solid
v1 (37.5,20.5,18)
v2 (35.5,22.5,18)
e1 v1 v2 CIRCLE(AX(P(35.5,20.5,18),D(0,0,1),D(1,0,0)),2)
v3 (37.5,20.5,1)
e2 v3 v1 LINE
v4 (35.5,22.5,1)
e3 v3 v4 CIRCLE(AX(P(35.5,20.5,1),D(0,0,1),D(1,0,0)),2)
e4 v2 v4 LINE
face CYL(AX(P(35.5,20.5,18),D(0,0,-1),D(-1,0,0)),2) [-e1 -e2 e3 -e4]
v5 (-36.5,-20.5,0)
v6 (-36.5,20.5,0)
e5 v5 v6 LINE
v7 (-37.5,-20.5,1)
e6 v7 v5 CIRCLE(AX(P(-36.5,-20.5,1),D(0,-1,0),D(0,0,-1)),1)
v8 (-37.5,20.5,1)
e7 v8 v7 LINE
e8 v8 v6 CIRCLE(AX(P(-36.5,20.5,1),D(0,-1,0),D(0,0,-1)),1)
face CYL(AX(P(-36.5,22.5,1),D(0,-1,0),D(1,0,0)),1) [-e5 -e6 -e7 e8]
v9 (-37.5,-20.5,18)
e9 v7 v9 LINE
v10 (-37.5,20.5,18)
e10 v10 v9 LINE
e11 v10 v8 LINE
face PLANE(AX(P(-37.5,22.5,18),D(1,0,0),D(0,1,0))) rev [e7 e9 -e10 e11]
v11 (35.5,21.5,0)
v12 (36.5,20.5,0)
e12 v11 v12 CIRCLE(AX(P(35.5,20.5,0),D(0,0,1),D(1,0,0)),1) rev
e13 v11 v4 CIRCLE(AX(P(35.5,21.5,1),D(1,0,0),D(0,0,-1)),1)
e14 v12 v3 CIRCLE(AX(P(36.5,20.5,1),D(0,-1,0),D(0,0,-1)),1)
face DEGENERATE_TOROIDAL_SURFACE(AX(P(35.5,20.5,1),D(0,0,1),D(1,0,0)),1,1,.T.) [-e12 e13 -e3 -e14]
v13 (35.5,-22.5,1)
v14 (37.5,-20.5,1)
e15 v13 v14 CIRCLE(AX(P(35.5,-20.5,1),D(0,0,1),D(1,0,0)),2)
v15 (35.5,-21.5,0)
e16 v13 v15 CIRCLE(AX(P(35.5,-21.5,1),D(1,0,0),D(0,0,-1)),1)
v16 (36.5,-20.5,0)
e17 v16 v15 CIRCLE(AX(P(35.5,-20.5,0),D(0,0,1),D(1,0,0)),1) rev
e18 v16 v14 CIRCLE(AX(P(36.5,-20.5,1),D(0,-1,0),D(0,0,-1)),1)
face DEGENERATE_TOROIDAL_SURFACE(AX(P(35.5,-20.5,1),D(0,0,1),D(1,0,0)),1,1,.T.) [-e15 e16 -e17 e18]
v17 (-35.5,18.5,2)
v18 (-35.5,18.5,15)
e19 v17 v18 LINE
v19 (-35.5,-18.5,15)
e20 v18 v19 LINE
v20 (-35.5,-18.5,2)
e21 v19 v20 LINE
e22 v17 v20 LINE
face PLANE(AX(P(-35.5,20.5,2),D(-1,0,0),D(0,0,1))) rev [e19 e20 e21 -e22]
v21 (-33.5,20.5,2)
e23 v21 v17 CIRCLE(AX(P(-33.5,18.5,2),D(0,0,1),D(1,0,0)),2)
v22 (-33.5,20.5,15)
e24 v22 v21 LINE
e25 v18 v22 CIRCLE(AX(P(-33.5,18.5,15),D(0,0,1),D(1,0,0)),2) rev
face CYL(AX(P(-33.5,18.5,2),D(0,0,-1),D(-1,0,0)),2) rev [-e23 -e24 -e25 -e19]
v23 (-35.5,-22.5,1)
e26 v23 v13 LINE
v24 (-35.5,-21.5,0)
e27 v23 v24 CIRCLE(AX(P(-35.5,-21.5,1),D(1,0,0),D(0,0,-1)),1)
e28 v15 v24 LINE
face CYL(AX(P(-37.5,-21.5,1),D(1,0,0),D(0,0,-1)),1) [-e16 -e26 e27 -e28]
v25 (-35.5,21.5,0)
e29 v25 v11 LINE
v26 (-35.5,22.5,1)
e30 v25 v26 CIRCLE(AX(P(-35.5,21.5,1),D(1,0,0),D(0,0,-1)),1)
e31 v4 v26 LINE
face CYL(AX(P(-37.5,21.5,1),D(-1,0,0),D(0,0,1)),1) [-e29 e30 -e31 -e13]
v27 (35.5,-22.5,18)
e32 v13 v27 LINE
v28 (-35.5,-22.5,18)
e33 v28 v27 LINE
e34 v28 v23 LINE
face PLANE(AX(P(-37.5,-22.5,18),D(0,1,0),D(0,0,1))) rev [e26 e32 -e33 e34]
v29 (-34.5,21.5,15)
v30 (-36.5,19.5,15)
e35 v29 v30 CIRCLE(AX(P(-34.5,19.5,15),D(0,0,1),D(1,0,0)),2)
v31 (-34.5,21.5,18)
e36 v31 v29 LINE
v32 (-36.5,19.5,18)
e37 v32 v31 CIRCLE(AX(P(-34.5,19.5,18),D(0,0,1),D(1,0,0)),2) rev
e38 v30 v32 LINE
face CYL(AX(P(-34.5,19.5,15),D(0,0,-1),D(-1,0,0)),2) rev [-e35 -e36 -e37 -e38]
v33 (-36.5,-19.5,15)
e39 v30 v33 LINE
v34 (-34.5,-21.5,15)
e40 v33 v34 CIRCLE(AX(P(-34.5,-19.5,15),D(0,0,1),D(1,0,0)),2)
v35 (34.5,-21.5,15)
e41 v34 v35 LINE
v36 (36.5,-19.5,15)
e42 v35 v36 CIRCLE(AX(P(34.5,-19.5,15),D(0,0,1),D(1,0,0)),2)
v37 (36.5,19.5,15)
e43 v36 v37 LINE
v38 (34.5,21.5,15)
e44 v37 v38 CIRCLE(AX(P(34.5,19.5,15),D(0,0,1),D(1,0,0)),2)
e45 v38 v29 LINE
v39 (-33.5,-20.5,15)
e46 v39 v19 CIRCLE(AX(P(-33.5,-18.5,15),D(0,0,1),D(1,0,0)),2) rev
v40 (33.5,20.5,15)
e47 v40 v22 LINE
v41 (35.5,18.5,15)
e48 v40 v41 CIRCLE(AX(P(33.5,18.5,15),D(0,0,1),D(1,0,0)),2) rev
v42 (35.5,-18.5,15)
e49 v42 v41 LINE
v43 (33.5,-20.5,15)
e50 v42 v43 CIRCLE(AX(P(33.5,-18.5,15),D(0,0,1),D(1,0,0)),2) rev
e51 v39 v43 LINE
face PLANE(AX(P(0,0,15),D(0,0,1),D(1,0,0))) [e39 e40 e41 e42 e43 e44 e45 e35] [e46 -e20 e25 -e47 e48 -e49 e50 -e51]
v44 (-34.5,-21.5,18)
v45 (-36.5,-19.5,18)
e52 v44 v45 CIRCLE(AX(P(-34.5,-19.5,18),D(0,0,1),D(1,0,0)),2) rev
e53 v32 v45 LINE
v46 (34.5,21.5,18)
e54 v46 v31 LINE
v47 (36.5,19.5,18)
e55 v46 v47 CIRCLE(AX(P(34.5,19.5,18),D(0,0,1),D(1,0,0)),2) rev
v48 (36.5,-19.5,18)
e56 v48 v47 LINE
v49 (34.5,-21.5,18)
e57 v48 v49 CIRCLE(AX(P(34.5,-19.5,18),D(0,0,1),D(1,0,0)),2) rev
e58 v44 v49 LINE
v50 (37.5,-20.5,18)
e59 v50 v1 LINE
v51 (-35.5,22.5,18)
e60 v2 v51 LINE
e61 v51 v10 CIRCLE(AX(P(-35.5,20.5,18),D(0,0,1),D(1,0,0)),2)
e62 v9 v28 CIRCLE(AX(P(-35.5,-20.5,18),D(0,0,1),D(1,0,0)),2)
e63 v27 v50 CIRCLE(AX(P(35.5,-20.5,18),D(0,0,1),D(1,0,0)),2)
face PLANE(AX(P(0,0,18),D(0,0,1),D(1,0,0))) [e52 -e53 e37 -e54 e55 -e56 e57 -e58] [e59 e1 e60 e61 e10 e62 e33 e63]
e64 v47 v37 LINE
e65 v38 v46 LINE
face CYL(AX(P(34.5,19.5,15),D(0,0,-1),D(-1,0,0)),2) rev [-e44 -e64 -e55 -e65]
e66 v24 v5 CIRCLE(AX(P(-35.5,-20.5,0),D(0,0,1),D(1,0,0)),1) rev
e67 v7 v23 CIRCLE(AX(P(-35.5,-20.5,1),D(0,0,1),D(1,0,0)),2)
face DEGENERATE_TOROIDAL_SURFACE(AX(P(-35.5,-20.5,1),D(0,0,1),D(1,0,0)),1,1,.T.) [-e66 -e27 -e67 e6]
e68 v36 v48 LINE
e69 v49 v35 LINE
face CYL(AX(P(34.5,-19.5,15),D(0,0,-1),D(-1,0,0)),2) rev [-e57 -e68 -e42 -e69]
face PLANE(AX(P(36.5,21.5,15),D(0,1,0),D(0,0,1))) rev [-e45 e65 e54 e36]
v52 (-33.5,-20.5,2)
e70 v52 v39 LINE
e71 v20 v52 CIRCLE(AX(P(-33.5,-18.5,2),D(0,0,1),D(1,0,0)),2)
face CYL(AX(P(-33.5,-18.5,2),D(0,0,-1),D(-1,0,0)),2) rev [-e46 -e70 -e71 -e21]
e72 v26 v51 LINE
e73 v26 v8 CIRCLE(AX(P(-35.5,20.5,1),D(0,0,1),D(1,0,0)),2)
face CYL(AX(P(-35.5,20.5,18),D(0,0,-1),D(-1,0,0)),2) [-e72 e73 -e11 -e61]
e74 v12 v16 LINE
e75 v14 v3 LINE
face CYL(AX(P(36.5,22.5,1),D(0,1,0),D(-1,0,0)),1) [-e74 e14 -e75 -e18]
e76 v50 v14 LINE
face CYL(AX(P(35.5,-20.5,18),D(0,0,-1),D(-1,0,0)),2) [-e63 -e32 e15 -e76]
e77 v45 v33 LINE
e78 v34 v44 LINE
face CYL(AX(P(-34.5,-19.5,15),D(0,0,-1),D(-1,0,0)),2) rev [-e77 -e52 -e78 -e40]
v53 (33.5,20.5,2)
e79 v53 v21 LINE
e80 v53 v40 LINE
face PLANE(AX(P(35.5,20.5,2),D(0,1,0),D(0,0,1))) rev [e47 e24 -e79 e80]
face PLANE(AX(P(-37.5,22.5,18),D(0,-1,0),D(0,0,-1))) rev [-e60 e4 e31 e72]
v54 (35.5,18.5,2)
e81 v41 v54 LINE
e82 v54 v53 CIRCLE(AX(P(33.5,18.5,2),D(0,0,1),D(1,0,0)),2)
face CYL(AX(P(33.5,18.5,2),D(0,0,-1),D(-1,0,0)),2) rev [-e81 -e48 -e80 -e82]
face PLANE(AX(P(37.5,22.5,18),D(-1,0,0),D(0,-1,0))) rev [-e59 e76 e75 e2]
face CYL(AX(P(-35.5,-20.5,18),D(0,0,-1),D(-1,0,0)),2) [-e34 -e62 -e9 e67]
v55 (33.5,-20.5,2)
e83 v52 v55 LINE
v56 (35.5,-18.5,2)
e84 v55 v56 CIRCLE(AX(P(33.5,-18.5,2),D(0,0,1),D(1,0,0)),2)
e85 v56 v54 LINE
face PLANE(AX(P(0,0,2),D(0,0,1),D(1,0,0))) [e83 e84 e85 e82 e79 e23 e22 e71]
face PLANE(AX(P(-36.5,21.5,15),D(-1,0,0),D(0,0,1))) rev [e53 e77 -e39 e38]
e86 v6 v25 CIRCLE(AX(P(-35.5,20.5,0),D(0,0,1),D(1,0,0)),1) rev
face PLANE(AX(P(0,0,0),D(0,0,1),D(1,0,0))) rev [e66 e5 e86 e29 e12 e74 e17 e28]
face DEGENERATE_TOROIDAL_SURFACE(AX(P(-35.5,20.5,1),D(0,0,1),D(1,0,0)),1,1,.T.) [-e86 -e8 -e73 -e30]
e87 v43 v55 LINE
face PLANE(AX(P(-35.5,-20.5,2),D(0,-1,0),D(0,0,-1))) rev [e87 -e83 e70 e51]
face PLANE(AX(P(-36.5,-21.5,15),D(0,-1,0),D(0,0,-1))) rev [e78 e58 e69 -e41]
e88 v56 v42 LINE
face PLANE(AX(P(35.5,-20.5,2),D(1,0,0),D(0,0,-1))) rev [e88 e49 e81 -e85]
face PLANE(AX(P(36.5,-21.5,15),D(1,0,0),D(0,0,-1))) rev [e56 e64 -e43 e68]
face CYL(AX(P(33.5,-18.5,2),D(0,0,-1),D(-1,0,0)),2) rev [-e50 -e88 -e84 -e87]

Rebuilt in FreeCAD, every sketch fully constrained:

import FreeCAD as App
import Part
import Sketcher
Q = App.Units.Quantity


def edges_at(feature, points):
    """Names of the edges that pass closest to the given points."""
    edges = feature.Shape.Edges
    near = lambda p: min(range(len(edges)), key=lambda i: edges[i].distToShape(Part.Vertex(*p))[0])
    return sorted({f"Edge{near(p) + 1}" for p in points})


def add_polygon(sketch, points):
    """Adds a closed chain of lines whose ends are joined by coincident constraints."""
    first, n = sketch.GeometryCount, len(points)
    for a, b in zip(points, points[1:] + points[:1]):
        sketch.addGeometry(Part.LineSegment(App.Vector(*a, 0), App.Vector(*b, 0)), False)
    for i in range(n):
        sketch.addConstraint(Sketcher.Constraint("Coincident", first + i, 2, first + (i + 1) % n, 1))

doc = App.newDocument("Part")
body = doc.addObject("PartDesign::Body", "Body")

sketch1 = body.newObject("Sketcher::SketchObject", "Sketch")
sketch1.AttachmentSupport = (doc.getObject("XY_Plane"), [""])
sketch1.MapMode = "FlatFace"
add_polygon(sketch1, [(-37.5, 22.5), (-37.5, -22.5), (37.5, -22.5), (37.5, 22.5)])
sketch1.addConstraint(Sketcher.Constraint("Vertical", 0))
sketch1.addConstraint(Sketcher.Constraint("Horizontal", 1))
sketch1.addConstraint(Sketcher.Constraint("Vertical", 2))
sketch1.addConstraint(Sketcher.Constraint("Horizontal", 3))
sketch1.addConstraint(Sketcher.Constraint("Symmetric", 0, 2, 2, 2, -1, 1))
sketch1.addConstraint(Sketcher.Constraint("DistanceX", 1, 1, 1, 2, Q("75 mm")))
sketch1.addConstraint(Sketcher.Constraint("DistanceY", 0, 2, 0, 1, Q("45 mm")))
pad1 = body.newObject("PartDesign::Pad", "Pad")
pad1.Profile = sketch1
pad1.Length = 18

sketch2 = body.newObject("Sketcher::SketchObject", "Sketch001")
sketch2.AttachmentSupport = (doc.getObject("XY_Plane"), [""])
sketch2.MapMode = "FlatFace"
sketch2.AttachmentOffset = App.Placement(App.Vector(0, 0, 18), App.Rotation())
add_polygon(sketch2, [(-35.5, 20.5), (-35.5, -20.5), (35.5, -20.5), (35.5, 20.5)])
sketch2.addConstraint(Sketcher.Constraint("Vertical", 0))
sketch2.addConstraint(Sketcher.Constraint("Horizontal", 1))
sketch2.addConstraint(Sketcher.Constraint("Vertical", 2))
sketch2.addConstraint(Sketcher.Constraint("Horizontal", 3))
sketch2.addConstraint(Sketcher.Constraint("Symmetric", 0, 2, 2, 2, -1, 1))
sketch2.addConstraint(Sketcher.Constraint("DistanceX", 1, 1, 1, 2, Q("71 mm")))
sketch2.addConstraint(Sketcher.Constraint("DistanceY", 0, 2, 0, 1, Q("41 mm")))
pocket1 = body.newObject("PartDesign::Pocket", "Pocket")
pocket1.Profile = sketch2
pocket1.Length = 16

sketch3 = body.newObject("Sketcher::SketchObject", "Sketch002")
sketch3.AttachmentSupport = (doc.getObject("XY_Plane"), [""])
sketch3.MapMode = "FlatFace"
sketch3.AttachmentOffset = App.Placement(App.Vector(0, 0, 18), App.Rotation())
add_polygon(sketch3, [(-36.5, 21.5), (-36.5, -21.5), (36.5, -21.5), (36.5, 21.5)])
add_polygon(sketch3, [(35.5, -20.5), (-35.5, -20.5), (-35.5, 20.5), (35.5, 20.5)])
sketch3.addConstraint(Sketcher.Constraint("Vertical", 0))
sketch3.addConstraint(Sketcher.Constraint("Horizontal", 1))
sketch3.addConstraint(Sketcher.Constraint("Vertical", 2))
sketch3.addConstraint(Sketcher.Constraint("Horizontal", 3))
sketch3.addConstraint(Sketcher.Constraint("Horizontal", 4))
sketch3.addConstraint(Sketcher.Constraint("Vertical", 5))
sketch3.addConstraint(Sketcher.Constraint("Horizontal", 6))
sketch3.addConstraint(Sketcher.Constraint("Vertical", 7))
sketch3.addConstraint(Sketcher.Constraint("Symmetric", 0, 2, 2, 2, -1, 1))
sketch3.addConstraint(Sketcher.Constraint("Symmetric", 4, 2, 6, 2, -1, 1))
sketch3.addConstraint(Sketcher.Constraint("DistanceX", 1, 1, 1, 2, Q("73 mm")))
sketch3.addConstraint(Sketcher.Constraint("DistanceX", 4, 2, 4, 1, Q("71 mm")))
sketch3.addConstraint(Sketcher.Constraint("DistanceY", 0, 2, 0, 1, Q("43 mm")))
sketch3.addConstraint(Sketcher.Constraint("DistanceY", 5, 1, 5, 2, Q("41 mm")))
pocket2 = body.newObject("PartDesign::Pocket", "Pocket001")
pocket2.Profile = sketch3
pocket2.Length = 3
doc.recompute()

fillet = body.newObject("PartDesign::Fillet", "Fillet")
fillet.Base = (pocket2, edges_at(pocket2, [
    (-35.5, 20.5, 8.5),
    (35.5, 20.5, 8.5),
    (35.5, -20.5, 8.5),
    (-35.5, -20.5, 8.5),
    (-36.5, -21.5, 16.5),
    (-36.5, 21.5, 16.5),
    (36.5, 21.5, 16.5),
    (36.5, -21.5, 16.5),
    (-37.5, 22.5, 9),
    (37.5, 22.5, 9),
    (37.5, -22.5, 9),
    (-37.5, -22.5, 9),
]))
fillet.Radius = 2
doc.recompute()

fillet2 = body.newObject("PartDesign::Fillet", "Fillet001")
fillet2.Base = (fillet, edges_at(fillet, [
    (0, -22.5, 0),
    (-37.5, 0, 0),
    (0, 22.5, 0),
    (37.5, 0, 0),
    (-36.914, 21.914, 0),
    (36.914, 21.914, 0),
    (36.914, -21.914, 0),
    (-36.914, -21.914, 0),
]))
fillet2.Radius = 1

doc.recompute()
